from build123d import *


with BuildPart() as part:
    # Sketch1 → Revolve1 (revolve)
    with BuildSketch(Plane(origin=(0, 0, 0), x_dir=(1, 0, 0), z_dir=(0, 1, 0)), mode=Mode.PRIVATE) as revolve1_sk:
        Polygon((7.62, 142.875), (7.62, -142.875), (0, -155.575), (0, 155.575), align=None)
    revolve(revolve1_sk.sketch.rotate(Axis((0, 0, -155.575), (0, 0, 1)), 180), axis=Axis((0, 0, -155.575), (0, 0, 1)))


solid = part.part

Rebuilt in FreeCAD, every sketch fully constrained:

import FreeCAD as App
import Part
import Sketcher

V = App.Vector
Q = App.Units.Quantity


def add_polygon(sketch, points):
    """Adds a closed chain of lines whose ends are joined by coincident constraints."""
    first, n = sketch.GeometryCount, len(points)
    for a, b in zip(points, points[1:] + points[:1]):
        sketch.addGeometry(Part.LineSegment(App.Vector(*a, 0), App.Vector(*b, 0)), False)
    for i in range(n):
        sketch.addConstraint(Sketcher.Constraint("Coincident", first + i, 2, first + (i + 1) % n, 1))

doc = App.newDocument("Part")
body = doc.addObject("PartDesign::Body", "Body")

sketch1 = body.newObject("Sketcher::SketchObject", "Sketch")
sketch1.AttachmentSupport = (doc.getObject("XZ_Plane"), [""])
sketch1.MapMode = "FlatFace"
add_polygon(sketch1, [(7.62, 142.875), (7.62, -142.875), (0, -155.575), (0, 155.575)])
sketch1.addConstraint(Sketcher.Constraint("Vertical", 0))
sketch1.addConstraint(Sketcher.Constraint("Vertical", 2))
sketch1.addConstraint(Sketcher.Constraint("Symmetric", 1, 2, 2, 2, -1, 1))
sketch1.addConstraint(Sketcher.Constraint("Equal", 1, 3))
sketch1.addConstraint(Sketcher.Constraint("DistanceY", 0, 2, 0, 1, Q("11.25 in")))
sketch1.addConstraint(Sketcher.Constraint("DistanceY", 2, 1, 2, 2, Q("12.25 in")))
sketch1.addConstraint(Sketcher.Constraint("DistanceX", -1, 1, 0, 2, Q("0.3 in")))
revolution = body.newObject("PartDesign::Revolution", "Revolution")
revolution.Profile = sketch1
revolution.ReferenceAxis = (sketch1, ["V_Axis"])
revolution.Angle = 360

doc.recompute()
